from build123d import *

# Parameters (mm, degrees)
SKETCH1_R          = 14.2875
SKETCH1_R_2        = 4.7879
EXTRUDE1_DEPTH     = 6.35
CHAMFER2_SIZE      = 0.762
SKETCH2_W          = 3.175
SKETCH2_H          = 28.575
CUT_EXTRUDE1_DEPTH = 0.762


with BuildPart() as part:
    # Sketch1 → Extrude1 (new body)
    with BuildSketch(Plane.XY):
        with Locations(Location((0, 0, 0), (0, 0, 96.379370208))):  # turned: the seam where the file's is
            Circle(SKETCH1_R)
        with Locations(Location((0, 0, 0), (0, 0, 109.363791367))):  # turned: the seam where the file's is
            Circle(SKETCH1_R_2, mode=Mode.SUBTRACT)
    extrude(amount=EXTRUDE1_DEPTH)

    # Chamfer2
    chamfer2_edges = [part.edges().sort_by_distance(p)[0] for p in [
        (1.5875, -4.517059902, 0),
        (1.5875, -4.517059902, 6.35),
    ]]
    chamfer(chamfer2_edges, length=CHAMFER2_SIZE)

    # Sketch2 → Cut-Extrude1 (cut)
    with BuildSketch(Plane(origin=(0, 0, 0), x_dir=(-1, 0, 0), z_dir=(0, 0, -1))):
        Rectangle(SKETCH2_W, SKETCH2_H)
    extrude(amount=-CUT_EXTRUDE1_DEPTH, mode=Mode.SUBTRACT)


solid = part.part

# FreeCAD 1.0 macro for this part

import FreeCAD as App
import Part
import Sketcher
from FreeCAD import Vector
Q = App.Units.Quantity


def edges_at(feature, points):
    """Names of the edges that pass closest to the given points."""
    edges = feature.Shape.Edges
    near = lambda p: min(range(len(edges)), key=lambda i: edges[i].distToShape(Part.Vertex(*p))[0])
    return sorted({f"Edge{near(p) + 1}" for p in points})

doc = App.newDocument("Part")
body = doc.addObject("PartDesign::Body", "Body")

sketch1 = body.newObject("Sketcher::SketchObject", "Sketch")
sketch1.AttachmentSupport = (doc.getObject("XY_Plane"), [""])
sketch1.MapMode = "FlatFace"
sketch1.addGeometry(Part.Circle(Vector(0, 0, 0), Vector(0, 0, 1), 14.3), False)
sketch1.addGeometry(Part.Circle(Vector(0, 0, 0), Vector(0, 0, 1), 4.8), False)
sketch1.addConstraint(Sketcher.Constraint("Coincident", 0, 3, -1, 1))
sketch1.addConstraint(Sketcher.Constraint("Coincident", 1, 3, -1, 1))
sketch1.addConstraint(Sketcher.Constraint("Diameter", 0, Q("1.125 in")))
sketch1.addConstraint(Sketcher.Constraint("Diameter", 1, Q("0.377 in")))
pad1 = body.newObject("PartDesign::Pad", "Pad")
pad1.Profile = sketch1
pad1.Length = Q("0.25 in")
doc.recompute()

chamfer = body.newObject("PartDesign::Chamfer", "Chamfer")
chamfer.Base = (pad1, edges_at(pad1, [(1.587, -4.517, 0), (1.587, -4.517, 6.35)]))
chamfer.Size = Q("0.03 in")

sketch2 = body.newObject("Sketcher::SketchObject", "Sketch001")
sketch2.AttachmentSupport = (doc.getObject("XY_Plane"), [""])
sketch2.MapMode = "FlatFace"
sketch2.addGeometry(Part.LineSegment(Vector(1.6, 14.3, 0), Vector(1.6, -14.3, 0)), False)
sketch2.addGeometry(Part.LineSegment(Vector(1.6, -14.3, 0), Vector(-1.6, -14.3, 0)), False)
sketch2.addGeometry(Part.LineSegment(Vector(-1.6, -14.3, 0), Vector(-1.6, 14.3, 0)), False)
sketch2.addGeometry(Part.LineSegment(Vector(-1.6, 14.3, 0), Vector(1.6, 14.3, 0)), False)
sketch2.addConstraint(Sketcher.Constraint("Coincident", 0, 2, 1, 1))
sketch2.addConstraint(Sketcher.Constraint("Coincident", 1, 2, 2, 1))
sketch2.addConstraint(Sketcher.Constraint("Coincident", 2, 2, 3, 1))
sketch2.addConstraint(Sketcher.Constraint("Coincident", 3, 2, 0, 1))
sketch2.addConstraint(Sketcher.Constraint("Vertical", 0))
sketch2.addConstraint(Sketcher.Constraint("Horizontal", 1))
sketch2.addConstraint(Sketcher.Constraint("Vertical", 2))
sketch2.addConstraint(Sketcher.Constraint("Horizontal", 3))
sketch2.addConstraint(Sketcher.Constraint("Symmetric", 0, 2, 2, 2, -1, 1))
sketch2.addConstraint(Sketcher.Constraint("DistanceX", 1, 2, 1, 1, Q("0.125 in")))
sketch2.addConstraint(Sketcher.Constraint("DistanceY", 0, 2, 0, 1, Q("1.125 in")))
pocket1 = body.newObject("PartDesign::Pocket", "Pocket")
pocket1.Profile = sketch2
pocket1.Length = Q("0.03 in")
pocket1.Reversed = True

doc.recompute()
